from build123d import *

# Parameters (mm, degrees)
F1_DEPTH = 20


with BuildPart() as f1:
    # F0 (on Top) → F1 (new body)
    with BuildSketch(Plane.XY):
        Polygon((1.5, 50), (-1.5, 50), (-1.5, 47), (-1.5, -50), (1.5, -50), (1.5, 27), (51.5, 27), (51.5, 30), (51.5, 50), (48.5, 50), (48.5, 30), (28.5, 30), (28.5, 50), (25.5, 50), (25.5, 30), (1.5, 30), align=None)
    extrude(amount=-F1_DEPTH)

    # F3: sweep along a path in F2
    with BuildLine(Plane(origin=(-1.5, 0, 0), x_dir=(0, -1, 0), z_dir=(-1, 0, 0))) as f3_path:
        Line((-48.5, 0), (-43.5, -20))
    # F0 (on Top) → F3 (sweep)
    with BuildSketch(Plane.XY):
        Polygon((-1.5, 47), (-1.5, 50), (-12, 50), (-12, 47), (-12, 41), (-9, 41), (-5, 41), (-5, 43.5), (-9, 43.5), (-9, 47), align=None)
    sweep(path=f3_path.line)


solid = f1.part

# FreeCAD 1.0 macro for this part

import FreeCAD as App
import Part
import Sketcher
from FreeCAD import Vector
Q = App.Units.Quantity


def add_polygon(sketch, points):
    """Adds a closed chain of lines whose ends are joined by coincident constraints."""
    first, n = sketch.GeometryCount, len(points)
    for a, b in zip(points, points[1:] + points[:1]):
        sketch.addGeometry(Part.LineSegment(App.Vector(*a, 0), App.Vector(*b, 0)), False)
    for i in range(n):
        sketch.addConstraint(Sketcher.Constraint("Coincident", first + i, 2, first + (i + 1) % n, 1))

doc = App.newDocument("Part")
body = doc.addObject("PartDesign::Body", "Body")

# Sketch on XY plane
sketch1 = body.newObject("Sketcher::SketchObject", "Sketch")
sketch1.AttachmentSupport = (doc.getObject("XY_Plane"), [""])
sketch1.MapMode = "FlatFace"
add_polygon(sketch1, [(1.5, 50), (-1.5, 50), (-1.5, -50), (1.5, -50), (1.5, 27), (51.5, 27), (51.5, 50), (48.5, 50), (48.5, 30), (28.5, 30), (28.5, 50), (25.5, 50), (25.5, 30), (1.5, 30)])  # lines 0-13
sketch1.addConstraint([
    Sketcher.Constraint("Horizontal", 0),
    Sketcher.Constraint("Vertical", 1),
    Sketcher.Constraint("Horizontal", 2),
    Sketcher.Constraint("Vertical", 3),
    Sketcher.Constraint("Horizontal", 4),
    Sketcher.Constraint("Vertical", 5),
    Sketcher.Constraint("Horizontal", 6),
    Sketcher.Constraint("Vertical", 7),
    Sketcher.Constraint("Horizontal", 8),
    Sketcher.Constraint("Vertical", 9),
    Sketcher.Constraint("Horizontal", 10),
    Sketcher.Constraint("Vertical", 11),
    Sketcher.Constraint("Horizontal", 12),
    Sketcher.Constraint("Vertical", 13),
    Sketcher.Constraint("Symmetric", 0, 2, 2, 2, -1, 1),
    Sketcher.Constraint("Horizontal", 0, 2, 5, 2),
    Sketcher.Constraint("Horizontal", 6, 2, 9, 2),
    Sketcher.Constraint("Horizontal", 8, 2, 11, 2),
    Sketcher.Constraint("Vertical", 3, 2, 12, 2),
    Sketcher.Constraint("Equal", 2, 6),
    Sketcher.Constraint("Equal", 6, 10),
    Sketcher.Constraint("Equal", 8, 7),
    Sketcher.Constraint("DistanceX", 0, 2, 0, 1, Q("3 mm")),
    Sketcher.Constraint("DistanceX", 4, 1, 4, 2, Q("50 mm")),
    Sketcher.Constraint("DistanceX", 8, 2, 8, 1, Q("20 mm")),
    Sketcher.Constraint("DistanceY", 1, 2, 1, 1, Q("100 mm")),
    Sketcher.Constraint("DistanceY", 3, 1, 3, 2, Q("77 mm")),
])
pad1 = body.newObject("PartDesign::Pad", "Pad")
pad1.Profile = sketch1
pad1.Length = 20
pad1.Reversed = True

# Sketch on XY plane
sketch2 = body.newObject("Sketcher::SketchObject", "Sketch001")
sketch2.AttachmentSupport = (doc.getObject("XY_Plane"), [""])
sketch2.MapMode = "FlatFace"
add_polygon(sketch2, [(-1.5, 47), (-1.5, 50), (-12, 50), (-12, 41), (-5, 41), (-5, 43.5), (-9, 43.5), (-9, 47)])  # lines 0-7
sketch2.addConstraint([
    Sketcher.Constraint("Vertical", 0),
    Sketcher.Constraint("Horizontal", 1),
    Sketcher.Constraint("Vertical", 2),
    Sketcher.Constraint("Horizontal", 3),
    Sketcher.Constraint("Vertical", 4),
    Sketcher.Constraint("Horizontal", 5),
    Sketcher.Constraint("Vertical", 6),
    Sketcher.Constraint("Horizontal", 7),
    Sketcher.Constraint("DistanceX", 3, 1, 3, 2, Q("7 mm")),
    Sketcher.Constraint("DistanceX", 5, 2, 5, 1, Q("4 mm")),
    Sketcher.Constraint("DistanceY", 0, 1, 0, 2, Q("3 mm")),
    Sketcher.Constraint("DistanceY", 2, 2, 2, 1, Q("9 mm")),
    Sketcher.Constraint("DistanceX", 1, 2, 1, 1, Q("10.5 mm")),
    Sketcher.Constraint("DistanceY", 4, 1, 4, 2, Q("2.5 mm")),
    Sketcher.Constraint("DistanceY", -1, 1, 0, 2, Q("50 mm")),
    Sketcher.Constraint("DistanceX", 1, 2, -1, 1, Q("12 mm")),
])

# Sketch on an angled plane
sketch3 = body.newObject("Sketcher::SketchObject", "Sketch002")
sketch3.Placement = App.Placement(Vector(0, 45.647059, -11.411765), App.Rotation(Vector(0, 0.242535625, 0.9701425), Vector(1, 0, 0), Vector(0, 0.9701425, -0.242535625), "ZXY"))
sketch3.addGeometry(Part.LineSegment(Vector(12, -1, 0), Vector(-9, -1, 0)), False)
sketch3.addConstraint([
    Sketcher.Constraint("Horizontal", 0),
    Sketcher.Constraint("DistanceY", 0, 1, -1, 1, Q("1.5 mm")),
    Sketcher.Constraint("DistanceX", 0, 2, 0, 1, Q("20.615528 mm")),
    Sketcher.Constraint("DistanceX", 0, 2, -1, 1, Q("8.85255 mm")),
])
doc.recompute()

additivepipe = body.newObject("PartDesign::AdditivePipe", "AdditivePipe")
additivepipe.Profile = sketch2
additivepipe.Spine = (sketch3, ["Edge1"])

doc.recompute()
